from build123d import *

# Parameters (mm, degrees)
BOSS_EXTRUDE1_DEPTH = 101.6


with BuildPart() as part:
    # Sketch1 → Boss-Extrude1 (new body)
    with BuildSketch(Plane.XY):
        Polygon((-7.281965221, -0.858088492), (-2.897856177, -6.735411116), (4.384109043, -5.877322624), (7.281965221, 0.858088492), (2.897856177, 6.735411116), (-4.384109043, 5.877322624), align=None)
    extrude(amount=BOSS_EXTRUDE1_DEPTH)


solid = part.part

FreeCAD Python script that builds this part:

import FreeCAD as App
import Part
import Sketcher
from FreeCAD import Vector
Q = App.Units.Quantity


def add_polygon(sketch, points):
    """Adds a closed chain of lines whose ends are joined by coincident constraints."""
    first, n = sketch.GeometryCount, len(points)
    for a, b in zip(points, points[1:] + points[:1]):
        sketch.addGeometry(Part.LineSegment(App.Vector(*a, 0), App.Vector(*b, 0)), False)
    for i in range(n):
        sketch.addConstraint(Sketcher.Constraint("Coincident", first + i, 2, first + (i + 1) % n, 1))

doc = App.newDocument("Part")
body = doc.addObject("PartDesign::Body", "Body")

# Sketch on XY plane
sketch1 = body.newObject("Sketcher::SketchObject", "Sketch")
sketch1.AttachmentSupport = (doc.getObject("XY_Plane"), [""])
sketch1.MapMode = "FlatFace"
add_polygon(sketch1, [(-7.281965, -0.858088), (-2.897856, -6.735411), (4.384109, -5.877323), (7.281965, 0.858088), (2.897856, 6.735411), (-4.384109, 5.877323)])  # lines 0-5
sketch1.addConstraint([
    Sketcher.Constraint("Symmetric", 0, 2, 3, 2, -1, 1),
    Sketcher.Constraint("Symmetric", 1, 2, 4, 2, -1, 1),
    Sketcher.Constraint("Symmetric", 2, 2, 5, 2, -1, 1),
    Sketcher.Constraint("Equal", 0, 1),
    Sketcher.Constraint("Equal", 1, 2),
    Sketcher.Constraint("DistanceY", 0, 2, 2, 2, Q("7.5935 mm")),
    Sketcher.Constraint("Distance", 0, Q("7.332348 mm")),
    Sketcher.Constraint("DistanceY", 0, 2, -1, 1, Q("6.735411 mm")),
    Sketcher.Constraint("DistanceX", -1, 1, 1, 2, Q("4.384109 mm")),
])
pad1 = body.newObject("PartDesign::Pad", "Pad")
pad1.Profile = sketch1
pad1.Length = Q("4 in")

doc.recompute()
